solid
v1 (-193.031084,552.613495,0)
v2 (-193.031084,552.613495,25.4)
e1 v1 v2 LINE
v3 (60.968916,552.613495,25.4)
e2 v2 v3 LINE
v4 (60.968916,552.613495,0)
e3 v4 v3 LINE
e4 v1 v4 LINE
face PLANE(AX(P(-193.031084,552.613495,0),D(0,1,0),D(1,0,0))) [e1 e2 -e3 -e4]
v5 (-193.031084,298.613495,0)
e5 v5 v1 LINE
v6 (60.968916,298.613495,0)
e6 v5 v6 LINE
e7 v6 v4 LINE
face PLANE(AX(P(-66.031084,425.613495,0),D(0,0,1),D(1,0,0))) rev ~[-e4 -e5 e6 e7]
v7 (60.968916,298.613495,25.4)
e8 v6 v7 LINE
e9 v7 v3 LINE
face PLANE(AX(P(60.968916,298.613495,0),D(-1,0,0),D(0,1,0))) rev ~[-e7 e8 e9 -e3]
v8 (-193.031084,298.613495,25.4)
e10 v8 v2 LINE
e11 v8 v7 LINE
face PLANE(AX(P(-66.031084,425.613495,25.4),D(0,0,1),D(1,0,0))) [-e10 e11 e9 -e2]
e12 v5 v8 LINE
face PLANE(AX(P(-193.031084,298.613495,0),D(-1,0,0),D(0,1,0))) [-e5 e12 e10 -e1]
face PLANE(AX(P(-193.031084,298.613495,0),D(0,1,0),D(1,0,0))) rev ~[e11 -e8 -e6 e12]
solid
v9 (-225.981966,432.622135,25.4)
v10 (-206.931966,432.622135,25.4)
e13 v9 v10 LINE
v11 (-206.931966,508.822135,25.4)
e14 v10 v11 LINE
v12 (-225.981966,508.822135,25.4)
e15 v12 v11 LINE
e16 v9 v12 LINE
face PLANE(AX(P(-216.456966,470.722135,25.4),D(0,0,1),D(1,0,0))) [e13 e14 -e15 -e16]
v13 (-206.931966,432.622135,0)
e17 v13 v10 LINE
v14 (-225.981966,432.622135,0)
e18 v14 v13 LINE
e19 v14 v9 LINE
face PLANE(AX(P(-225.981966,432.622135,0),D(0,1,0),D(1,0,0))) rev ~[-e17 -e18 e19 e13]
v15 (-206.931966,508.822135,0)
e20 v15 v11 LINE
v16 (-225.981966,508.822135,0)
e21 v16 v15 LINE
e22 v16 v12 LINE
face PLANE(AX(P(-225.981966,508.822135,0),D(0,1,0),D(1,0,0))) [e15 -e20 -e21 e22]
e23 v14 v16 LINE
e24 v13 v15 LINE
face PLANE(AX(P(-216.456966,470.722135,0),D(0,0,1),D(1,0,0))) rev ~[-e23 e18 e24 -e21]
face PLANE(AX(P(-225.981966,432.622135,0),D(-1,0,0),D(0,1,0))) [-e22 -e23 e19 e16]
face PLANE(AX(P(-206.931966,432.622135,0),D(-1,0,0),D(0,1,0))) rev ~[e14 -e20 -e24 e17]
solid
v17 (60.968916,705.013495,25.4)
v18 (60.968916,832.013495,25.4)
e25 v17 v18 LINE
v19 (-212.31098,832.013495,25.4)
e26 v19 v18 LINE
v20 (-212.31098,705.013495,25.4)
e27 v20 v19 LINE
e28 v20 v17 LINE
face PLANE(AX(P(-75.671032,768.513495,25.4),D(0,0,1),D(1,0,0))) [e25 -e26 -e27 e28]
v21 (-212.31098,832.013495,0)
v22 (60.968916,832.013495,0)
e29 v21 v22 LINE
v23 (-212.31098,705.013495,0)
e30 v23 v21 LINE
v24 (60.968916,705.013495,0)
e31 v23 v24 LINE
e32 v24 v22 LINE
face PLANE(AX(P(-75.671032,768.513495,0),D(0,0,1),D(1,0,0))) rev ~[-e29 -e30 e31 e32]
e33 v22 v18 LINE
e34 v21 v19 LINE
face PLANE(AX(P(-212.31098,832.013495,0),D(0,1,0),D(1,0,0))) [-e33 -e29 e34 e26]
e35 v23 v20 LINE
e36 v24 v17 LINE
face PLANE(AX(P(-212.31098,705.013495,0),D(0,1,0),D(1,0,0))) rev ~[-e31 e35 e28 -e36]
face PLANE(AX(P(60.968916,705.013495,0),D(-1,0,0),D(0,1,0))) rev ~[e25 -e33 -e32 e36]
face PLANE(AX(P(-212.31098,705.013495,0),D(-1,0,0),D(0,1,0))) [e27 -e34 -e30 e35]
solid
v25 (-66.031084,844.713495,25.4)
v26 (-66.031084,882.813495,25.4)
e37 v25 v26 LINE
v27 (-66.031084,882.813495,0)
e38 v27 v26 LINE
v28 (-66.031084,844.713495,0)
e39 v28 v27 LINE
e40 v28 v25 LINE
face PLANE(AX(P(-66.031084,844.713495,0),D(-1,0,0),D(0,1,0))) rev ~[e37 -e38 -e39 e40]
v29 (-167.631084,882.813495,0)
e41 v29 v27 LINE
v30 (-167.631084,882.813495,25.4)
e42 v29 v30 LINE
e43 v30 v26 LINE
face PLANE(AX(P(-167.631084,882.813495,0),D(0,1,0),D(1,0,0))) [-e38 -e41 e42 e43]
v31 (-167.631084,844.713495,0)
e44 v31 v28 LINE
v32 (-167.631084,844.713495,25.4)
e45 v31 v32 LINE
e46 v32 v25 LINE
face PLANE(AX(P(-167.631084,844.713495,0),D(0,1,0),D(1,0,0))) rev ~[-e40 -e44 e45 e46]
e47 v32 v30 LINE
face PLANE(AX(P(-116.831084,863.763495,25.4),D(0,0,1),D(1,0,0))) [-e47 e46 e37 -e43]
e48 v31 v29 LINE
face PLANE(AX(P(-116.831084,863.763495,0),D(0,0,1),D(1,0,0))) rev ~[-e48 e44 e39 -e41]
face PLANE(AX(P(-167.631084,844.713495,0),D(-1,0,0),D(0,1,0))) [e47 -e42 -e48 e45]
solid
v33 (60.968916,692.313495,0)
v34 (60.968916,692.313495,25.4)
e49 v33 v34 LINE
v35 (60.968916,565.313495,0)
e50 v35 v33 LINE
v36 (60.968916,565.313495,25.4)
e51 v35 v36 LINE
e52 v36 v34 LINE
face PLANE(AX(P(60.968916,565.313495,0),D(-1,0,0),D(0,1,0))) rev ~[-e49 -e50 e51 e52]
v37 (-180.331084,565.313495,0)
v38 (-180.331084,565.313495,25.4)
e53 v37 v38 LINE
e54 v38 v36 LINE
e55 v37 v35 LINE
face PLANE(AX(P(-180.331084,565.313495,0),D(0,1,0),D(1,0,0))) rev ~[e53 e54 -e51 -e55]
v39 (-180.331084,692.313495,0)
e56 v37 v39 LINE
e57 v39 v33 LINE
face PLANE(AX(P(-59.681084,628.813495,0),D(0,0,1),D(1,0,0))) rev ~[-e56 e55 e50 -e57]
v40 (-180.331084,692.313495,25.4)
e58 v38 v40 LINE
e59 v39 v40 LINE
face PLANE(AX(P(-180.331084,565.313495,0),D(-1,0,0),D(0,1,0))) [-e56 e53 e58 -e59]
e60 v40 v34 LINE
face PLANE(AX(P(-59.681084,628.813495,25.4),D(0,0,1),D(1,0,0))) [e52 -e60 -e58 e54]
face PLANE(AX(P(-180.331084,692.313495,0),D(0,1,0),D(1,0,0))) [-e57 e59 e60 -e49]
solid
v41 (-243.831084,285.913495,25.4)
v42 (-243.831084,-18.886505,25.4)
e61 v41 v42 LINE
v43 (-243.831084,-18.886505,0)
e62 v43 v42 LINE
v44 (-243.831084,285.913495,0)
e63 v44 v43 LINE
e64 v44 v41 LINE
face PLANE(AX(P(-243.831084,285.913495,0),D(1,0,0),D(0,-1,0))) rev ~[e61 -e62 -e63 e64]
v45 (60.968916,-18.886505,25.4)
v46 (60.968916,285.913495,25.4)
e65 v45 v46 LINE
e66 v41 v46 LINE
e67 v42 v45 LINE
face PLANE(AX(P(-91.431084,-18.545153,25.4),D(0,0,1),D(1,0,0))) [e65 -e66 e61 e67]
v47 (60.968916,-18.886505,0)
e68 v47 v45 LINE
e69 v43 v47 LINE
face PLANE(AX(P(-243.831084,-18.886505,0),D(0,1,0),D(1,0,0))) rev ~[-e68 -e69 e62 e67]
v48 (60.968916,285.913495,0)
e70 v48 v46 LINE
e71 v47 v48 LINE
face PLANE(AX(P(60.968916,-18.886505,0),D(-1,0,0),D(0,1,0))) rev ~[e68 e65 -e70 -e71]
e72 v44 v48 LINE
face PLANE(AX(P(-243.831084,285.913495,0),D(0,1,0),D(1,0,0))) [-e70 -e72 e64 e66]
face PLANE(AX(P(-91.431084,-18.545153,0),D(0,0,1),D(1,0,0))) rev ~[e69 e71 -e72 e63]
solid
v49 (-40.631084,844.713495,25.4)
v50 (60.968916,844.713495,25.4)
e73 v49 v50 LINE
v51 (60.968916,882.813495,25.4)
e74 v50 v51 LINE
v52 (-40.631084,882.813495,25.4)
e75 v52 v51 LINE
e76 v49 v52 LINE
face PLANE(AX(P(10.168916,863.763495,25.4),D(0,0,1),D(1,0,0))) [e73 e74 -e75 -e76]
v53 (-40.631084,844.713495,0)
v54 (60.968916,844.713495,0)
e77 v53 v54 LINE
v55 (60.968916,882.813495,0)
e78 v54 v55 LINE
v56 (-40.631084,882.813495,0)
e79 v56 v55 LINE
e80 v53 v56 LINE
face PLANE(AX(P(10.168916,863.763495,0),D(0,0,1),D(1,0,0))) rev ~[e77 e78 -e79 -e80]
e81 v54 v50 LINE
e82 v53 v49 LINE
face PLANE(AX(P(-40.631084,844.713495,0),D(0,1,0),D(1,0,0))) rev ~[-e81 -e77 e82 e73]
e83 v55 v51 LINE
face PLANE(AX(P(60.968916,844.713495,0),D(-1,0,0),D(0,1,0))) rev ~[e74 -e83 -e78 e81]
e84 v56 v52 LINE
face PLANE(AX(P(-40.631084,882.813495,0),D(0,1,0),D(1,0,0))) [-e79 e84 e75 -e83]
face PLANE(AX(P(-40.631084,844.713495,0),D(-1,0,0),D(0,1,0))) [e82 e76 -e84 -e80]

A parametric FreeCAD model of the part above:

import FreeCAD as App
import Part
import Sketcher

V = App.Vector
Q = App.Units.Quantity

doc = App.newDocument("Part")
body = doc.addObject("PartDesign::Body", "Body")
body.AllowCompound = True

# Sketch on XY plane
sketch1 = doc.addObject("Sketcher::SketchObject", "Sketch")
body.addObject(sketch1)
sketch1.AttachmentSupport = (doc.XY_Plane, [""])
sketch1.MapMode = "FlatFace"
sketch1.addGeometry(Part.LineSegment(V(-244, -19, 0), V(61, -19, 0)), False)
sketch1.addGeometry(Part.LineSegment(V(61, -19, 0), V(61, 286, 0)), False)
sketch1.addGeometry(Part.LineSegment(V(61, 286, 0), V(-244, 286, 0)), False)
sketch1.addGeometry(Part.LineSegment(V(-244, 286, 0), V(-244, -19, 0)), False)
sketch1.addGeometry(Part.LineSegment(V(-193, 553, 0), V(-193, 299, 0)), False)
sketch1.addGeometry(Part.LineSegment(V(-193, 299, 0), V(61, 299, 0)), False)
sketch1.addGeometry(Part.LineSegment(V(61, 299, 0), V(61, 553, 0)), False)
sketch1.addGeometry(Part.LineSegment(V(61, 553, 0), V(-193, 553, 0)), False)
sketch1.addGeometry(Part.LineSegment(V(-180, 692, 0), V(-180, 565, 0)), False)
sketch1.addGeometry(Part.LineSegment(V(-180, 565, 0), V(61, 565, 0)), False)
sketch1.addGeometry(Part.LineSegment(V(61, 565, 0), V(61, 692, 0)), False)
sketch1.addGeometry(Part.LineSegment(V(61, 692, 0), V(-180, 692, 0)), False)
sketch1.addGeometry(Part.LineSegment(V(-212, 832, 0), V(-212, 705, 0)), False)
sketch1.addGeometry(Part.LineSegment(V(-212, 705, 0), V(61, 705, 0)), False)
sketch1.addGeometry(Part.LineSegment(V(61, 705, 0), V(61, 832, 0)), False)
sketch1.addGeometry(Part.LineSegment(V(61, 832, 0), V(-212, 832, 0)), False)
sketch1.addGeometry(Part.LineSegment(V(-168, 883, 0), V(-168, 845, 0)), False)
sketch1.addGeometry(Part.LineSegment(V(-168, 845, 0), V(-66, 845, 0)), False)
sketch1.addGeometry(Part.LineSegment(V(-66, 845, 0), V(-66, 883, 0)), False)
sketch1.addGeometry(Part.LineSegment(V(-66, 883, 0), V(-168, 883, 0)), False)
sketch1.addGeometry(Part.LineSegment(V(-41, 883, 0), V(-41, 845, 0)), False)
sketch1.addGeometry(Part.LineSegment(V(-41, 845, 0), V(61, 845, 0)), False)
sketch1.addGeometry(Part.LineSegment(V(61, 845, 0), V(61, 883, 0)), False)
sketch1.addGeometry(Part.LineSegment(V(61, 883, 0), V(-41, 883, 0)), False)
sketch1.addGeometry(Part.LineSegment(V(-226, 509, 0), V(-226, 433, 0)), False)
sketch1.addGeometry(Part.LineSegment(V(-226, 433, 0), V(-207, 433, 0)), False)
sketch1.addGeometry(Part.LineSegment(V(-207, 433, 0), V(-207, 509, 0)), False)
sketch1.addGeometry(Part.LineSegment(V(-207, 509, 0), V(-226, 509, 0)), False)
sketch1.addConstraint(Sketcher.Constraint("Coincident", 0, 2, 1, 1))
sketch1.addConstraint(Sketcher.Constraint("Coincident", 1, 2, 2, 1))
sketch1.addConstraint(Sketcher.Constraint("Coincident", 2, 2, 3, 1))
sketch1.addConstraint(Sketcher.Constraint("Coincident", 3, 2, 0, 1))
sketch1.addConstraint(Sketcher.Constraint("Coincident", 4, 2, 5, 1))
sketch1.addConstraint(Sketcher.Constraint("Coincident", 5, 2, 6, 1))
sketch1.addConstraint(Sketcher.Constraint("Coincident", 6, 2, 7, 1))
sketch1.addConstraint(Sketcher.Constraint("Coincident", 7, 2, 4, 1))
sketch1.addConstraint(Sketcher.Constraint("Coincident", 8, 2, 9, 1))
sketch1.addConstraint(Sketcher.Constraint("Coincident", 9, 2, 10, 1))
sketch1.addConstraint(Sketcher.Constraint("Coincident", 10, 2, 11, 1))
sketch1.addConstraint(Sketcher.Constraint("Coincident", 11, 2, 8, 1))
sketch1.addConstraint(Sketcher.Constraint("Coincident", 12, 2, 13, 1))
sketch1.addConstraint(Sketcher.Constraint("Coincident", 13, 2, 14, 1))
sketch1.addConstraint(Sketcher.Constraint("Coincident", 14, 2, 15, 1))
sketch1.addConstraint(Sketcher.Constraint("Coincident", 15, 2, 12, 1))
sketch1.addConstraint(Sketcher.Constraint("Coincident", 16, 2, 17, 1))
sketch1.addConstraint(Sketcher.Constraint("Coincident", 17, 2, 18, 1))
sketch1.addConstraint(Sketcher.Constraint("Coincident", 18, 2, 19, 1))
sketch1.addConstraint(Sketcher.Constraint("Coincident", 19, 2, 16, 1))
sketch1.addConstraint(Sketcher.Constraint("Coincident", 20, 2, 21, 1))
sketch1.addConstraint(Sketcher.Constraint("Coincident", 21, 2, 22, 1))
sketch1.addConstraint(Sketcher.Constraint("Coincident", 22, 2, 23, 1))
sketch1.addConstraint(Sketcher.Constraint("Coincident", 23, 2, 20, 1))
sketch1.addConstraint(Sketcher.Constraint("Coincident", 24, 2, 25, 1))
sketch1.addConstraint(Sketcher.Constraint("Coincident", 25, 2, 26, 1))
sketch1.addConstraint(Sketcher.Constraint("Coincident", 26, 2, 27, 1))
sketch1.addConstraint(Sketcher.Constraint("Coincident", 27, 2, 24, 1))
sketch1.addConstraint(Sketcher.Constraint("Horizontal", 0))
sketch1.addConstraint(Sketcher.Constraint("Vertical", 1))
sketch1.addConstraint(Sketcher.Constraint("Horizontal", 2))
sketch1.addConstraint(Sketcher.Constraint("Vertical", 3))
sketch1.addConstraint(Sketcher.Constraint("Vertical", 4))
sketch1.addConstraint(Sketcher.Constraint("Horizontal", 5))
sketch1.addConstraint(Sketcher.Constraint("Vertical", 6))
sketch1.addConstraint(Sketcher.Constraint("Horizontal", 7))
sketch1.addConstraint(Sketcher.Constraint("Vertical", 8))
sketch1.addConstraint(Sketcher.Constraint("Horizontal", 9))
sketch1.addConstraint(Sketcher.Constraint("Vertical", 10))
sketch1.addConstraint(Sketcher.Constraint("Horizontal", 11))
sketch1.addConstraint(Sketcher.Constraint("Vertical", 12))
sketch1.addConstraint(Sketcher.Constraint("Horizontal", 13))
sketch1.addConstraint(Sketcher.Constraint("Vertical", 14))
sketch1.addConstraint(Sketcher.Constraint("Horizontal", 15))
sketch1.addConstraint(Sketcher.Constraint("Vertical", 16))
sketch1.addConstraint(Sketcher.Constraint("Horizontal", 17))
sketch1.addConstraint(Sketcher.Constraint("Vertical", 18))
sketch1.addConstraint(Sketcher.Constraint("Horizontal", 19))
sketch1.addConstraint(Sketcher.Constraint("Vertical", 20))
sketch1.addConstraint(Sketcher.Constraint("Horizontal", 21))
sketch1.addConstraint(Sketcher.Constraint("Vertical", 22))
sketch1.addConstraint(Sketcher.Constraint("Horizontal", 23))
sketch1.addConstraint(Sketcher.Constraint("Vertical", 24))
sketch1.addConstraint(Sketcher.Constraint("Horizontal", 25))
sketch1.addConstraint(Sketcher.Constraint("Vertical", 26))
sketch1.addConstraint(Sketcher.Constraint("Horizontal", 27))
sketch1.addConstraint(Sketcher.Constraint("Horizontal", 17, 2, 20, 2))
sketch1.addConstraint(Sketcher.Constraint("Horizontal", 19, 2, 22, 2))
sketch1.addConstraint(Sketcher.Constraint("Vertical", 1, 2, 5, 2))
sketch1.addConstraint(Sketcher.Constraint("Vertical", 6, 2, 9, 2))
sketch1.addConstraint(Sketcher.Constraint("Vertical", 10, 2, 13, 2))
sketch1.addConstraint(Sketcher.Constraint("Vertical", 14, 2, 21, 2))
sketch1.addConstraint(Sketcher.Constraint("Equal", 19, 21))
sketch1.addConstraint(Sketcher.Constraint("Equal", 2, 1))
sketch1.addConstraint(Sketcher.Constraint("Equal", 7, 4))
sketch1.addConstraint(Sketcher.Constraint("Equal", 10, 12))
sketch1.addConstraint(Sketcher.Constraint("DistanceX", 0, 1, 0, 2, Q("12 in")))
sketch1.addConstraint(Sketcher.Constraint("DistanceX", 5, 1, 5, 2, Q("10 in")))
sketch1.addConstraint(Sketcher.Constraint("DistanceX", 17, 1, 17, 2, Q("4 in")))
sketch1.addConstraint(Sketcher.Constraint("DistanceY", 8, 2, 8, 1, Q("5 in")))
sketch1.addConstraint(Sketcher.Constraint("DistanceY", 24, 2, 24, 1, Q("3 in")))
sketch1.addConstraint(Sketcher.Constraint("DistanceX", 9, 1, 9, 2, Q("9.5 in")))
sketch1.addConstraint(Sketcher.Constraint("DistanceY", 16, 2, 16, 1, Q("1.5 in")))
sketch1.addConstraint(Sketcher.Constraint("DistanceY", 2, 2, 8, 2, Q("11 in")))
sketch1.addConstraint(Sketcher.Constraint("DistanceY", 7, 2, 12, 2, Q("6 in")))
sketch1.addConstraint(Sketcher.Constraint("DistanceY", 11, 2, 16, 2, Q("6 in")))
sketch1.addConstraint(Sketcher.Constraint("DistanceX", 16, 2, 14, 2, Q("9 in")))
sketch1.addConstraint(Sketcher.Constraint("DistanceY", 14, 2, 18, 2, Q("2 in")))
sketch1.addConstraint(Sketcher.Constraint("DistanceX", 25, 1, 25, 2, Q("0.75 in")))
sketch1.addConstraint(Sketcher.Constraint("DistanceX", 12, 2, -1, 1, Q("8.3587 in")))
sketch1.addConstraint(Sketcher.Constraint("DistanceX", 13, 1, 13, 2, Q("273.279897 mm")))
sketch1.addConstraint(Sketcher.Constraint("DistanceY", 24, 2, 7, 2, Q("119.99136 mm")))
sketch1.addConstraint(Sketcher.Constraint("DistanceX", 24, 2, 8, 2, Q("45.650882 mm")))
sketch1.addConstraint(Sketcher.Constraint("DistanceY", 0, 2, -1, 1, Q("18.886505 mm")))
pad1 = doc.addObject("PartDesign::Pad", "Pad")
body.addObject(pad1)
pad1.Profile = sketch1
pad1.Length = Q("1 in")

doc.recompute()
